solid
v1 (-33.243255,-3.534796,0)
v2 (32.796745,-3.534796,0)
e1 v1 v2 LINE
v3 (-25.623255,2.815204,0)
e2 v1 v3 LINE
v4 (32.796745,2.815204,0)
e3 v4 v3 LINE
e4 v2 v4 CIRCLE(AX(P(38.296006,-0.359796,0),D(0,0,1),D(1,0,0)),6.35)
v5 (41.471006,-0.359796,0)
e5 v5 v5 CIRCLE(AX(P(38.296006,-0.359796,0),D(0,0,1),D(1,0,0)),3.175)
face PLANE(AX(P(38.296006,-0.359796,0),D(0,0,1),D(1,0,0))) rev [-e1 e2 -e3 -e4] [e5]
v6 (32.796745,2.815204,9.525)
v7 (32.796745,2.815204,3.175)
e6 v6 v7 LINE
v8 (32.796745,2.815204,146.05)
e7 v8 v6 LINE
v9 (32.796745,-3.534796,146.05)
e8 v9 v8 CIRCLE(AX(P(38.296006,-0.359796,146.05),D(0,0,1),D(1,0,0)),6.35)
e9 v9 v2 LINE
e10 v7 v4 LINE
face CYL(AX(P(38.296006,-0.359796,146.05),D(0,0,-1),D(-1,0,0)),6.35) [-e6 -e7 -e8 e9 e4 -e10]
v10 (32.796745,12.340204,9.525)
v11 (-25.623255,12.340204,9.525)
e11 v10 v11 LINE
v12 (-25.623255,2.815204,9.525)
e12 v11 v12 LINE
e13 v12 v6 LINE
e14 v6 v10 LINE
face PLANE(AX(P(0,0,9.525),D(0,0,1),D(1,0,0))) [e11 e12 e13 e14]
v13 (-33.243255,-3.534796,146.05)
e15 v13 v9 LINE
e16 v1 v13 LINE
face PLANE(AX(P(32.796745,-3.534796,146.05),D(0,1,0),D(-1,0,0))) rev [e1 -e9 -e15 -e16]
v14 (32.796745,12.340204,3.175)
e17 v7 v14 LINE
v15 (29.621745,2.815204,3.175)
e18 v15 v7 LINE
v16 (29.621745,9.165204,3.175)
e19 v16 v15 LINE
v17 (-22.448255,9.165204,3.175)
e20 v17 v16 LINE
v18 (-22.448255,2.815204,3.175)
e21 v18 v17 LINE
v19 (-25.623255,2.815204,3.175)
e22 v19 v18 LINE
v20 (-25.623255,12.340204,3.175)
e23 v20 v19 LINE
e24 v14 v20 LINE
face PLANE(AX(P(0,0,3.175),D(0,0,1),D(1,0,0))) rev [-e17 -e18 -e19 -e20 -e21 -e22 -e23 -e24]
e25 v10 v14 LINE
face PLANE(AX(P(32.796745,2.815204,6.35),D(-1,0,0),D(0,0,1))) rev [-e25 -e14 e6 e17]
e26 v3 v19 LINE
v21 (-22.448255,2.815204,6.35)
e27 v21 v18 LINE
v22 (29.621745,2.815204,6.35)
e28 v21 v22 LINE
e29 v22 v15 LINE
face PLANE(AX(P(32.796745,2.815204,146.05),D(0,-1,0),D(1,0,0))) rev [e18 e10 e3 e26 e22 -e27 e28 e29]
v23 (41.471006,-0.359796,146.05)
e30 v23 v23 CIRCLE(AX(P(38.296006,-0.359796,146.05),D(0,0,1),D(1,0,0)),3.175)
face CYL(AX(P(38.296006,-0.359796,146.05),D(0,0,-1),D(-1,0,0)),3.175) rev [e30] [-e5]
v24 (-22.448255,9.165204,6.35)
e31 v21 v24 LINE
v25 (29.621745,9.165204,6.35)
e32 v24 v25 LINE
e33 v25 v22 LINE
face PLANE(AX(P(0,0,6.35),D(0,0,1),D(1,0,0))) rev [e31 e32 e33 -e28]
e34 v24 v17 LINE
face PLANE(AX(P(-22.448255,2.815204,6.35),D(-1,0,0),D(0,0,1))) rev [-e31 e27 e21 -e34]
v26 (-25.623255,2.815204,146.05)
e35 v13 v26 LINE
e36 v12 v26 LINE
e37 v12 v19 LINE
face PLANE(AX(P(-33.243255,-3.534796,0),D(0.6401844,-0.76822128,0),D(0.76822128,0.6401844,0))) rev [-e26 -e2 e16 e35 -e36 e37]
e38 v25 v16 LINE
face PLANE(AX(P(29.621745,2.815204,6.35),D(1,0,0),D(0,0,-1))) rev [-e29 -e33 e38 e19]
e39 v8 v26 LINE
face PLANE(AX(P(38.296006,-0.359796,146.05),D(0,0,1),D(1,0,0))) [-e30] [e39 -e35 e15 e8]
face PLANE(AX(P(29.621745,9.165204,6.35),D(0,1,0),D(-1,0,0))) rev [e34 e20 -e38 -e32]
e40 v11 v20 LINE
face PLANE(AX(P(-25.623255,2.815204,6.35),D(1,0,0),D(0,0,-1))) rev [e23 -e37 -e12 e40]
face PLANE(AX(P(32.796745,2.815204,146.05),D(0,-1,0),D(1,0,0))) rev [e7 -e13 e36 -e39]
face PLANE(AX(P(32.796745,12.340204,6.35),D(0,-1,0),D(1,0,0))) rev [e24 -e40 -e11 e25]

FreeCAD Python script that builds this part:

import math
import FreeCAD as App
import Part
import Sketcher
Q = App.Units.Quantity


def add_polygon(sketch, points):
    """Adds a closed chain of lines whose ends are joined by coincident constraints."""
    first, n = sketch.GeometryCount, len(points)
    for a, b in zip(points, points[1:] + points[:1]):
        sketch.addGeometry(Part.LineSegment(App.Vector(*a, 0), App.Vector(*b, 0)), False)
    for i in range(n):
        sketch.addConstraint(Sketcher.Constraint("Coincident", first + i, 2, first + (i + 1) % n, 1))

doc = App.newDocument("Part")
body = doc.addObject("PartDesign::Body", "Body")

# Sketch on XY plane
sketch1 = body.newObject("Sketcher::SketchObject", "Sketch")
sketch1.AttachmentSupport = (doc.getObject("XY_Plane"), [""])
sketch1.MapMode = "FlatFace"
sketch1.addGeometry([
    Part.LineSegment(App.Vector(-33.2, 2.8, 0), App.Vector(-25.6, -3.5, 0)),  # 0
    Part.LineSegment(App.Vector(-25.6, -3.5, 0), App.Vector(32.8, -3.5, 0)),  # 1
    Part.ArcOfCircle(Part.Circle(App.Vector(38.3, -0.4, 0), App.Vector(0, 0, 1), 6.3), math.radians(-150), math.radians(150)),  # 2
    Part.LineSegment(App.Vector(32.8, 2.8, 0), App.Vector(-33.2, 2.8, 0)),  # 3
    Part.Circle(App.Vector(38.3, -0.4, 0), App.Vector(0, 0, 1), 3.2),  # 4
], False)
sketch1.addConstraint([
    Sketcher.Constraint("Coincident", 0, 2, 1, 1),
    Sketcher.Constraint("Coincident", 1, 2, 2, 1),
    Sketcher.Constraint("Coincident", 2, 2, 3, 1),
    Sketcher.Constraint("Coincident", 3, 2, 0, 1),
    Sketcher.Constraint("Horizontal", 1),
    Sketcher.Constraint("Horizontal", 3),
    Sketcher.Constraint("Coincident", 4, 3, 2, 3),
    Sketcher.Constraint("Vertical", 1, 2, 2, 2),
    Sketcher.Constraint("Diameter", 4, Q("0.25 in")),
    Sketcher.Constraint("Radius", 2, Q("0.25 in")),
    Sketcher.Constraint("DistanceX", 1, 1, 1, 2, Q("2.3 in")),
    Sketcher.Constraint("DistanceX", 3, 2, 3, 1, Q("2.6 in")),
    Sketcher.Constraint("DistanceY", 1, 2, 2, 2, Q("0.25 in")),
    Sketcher.Constraint("DistanceX", -1, 1, 2, 3, 38.296006),
    Sketcher.Constraint("DistanceY", 2, 3, -1, 1, 0.359796),
])
pad1 = body.newObject("PartDesign::Pad", "Pad")
pad1.Profile = sketch1
pad1.Length = Q("5.75 in")

# Sketch on XY plane
sketch2 = body.newObject("Sketcher::SketchObject", "Sketch001")
sketch2.AttachmentSupport = (doc.getObject("XY_Plane"), [""])
sketch2.MapMode = "FlatFace"
sketch2.AttachmentOffset = App.Placement(App.Vector(0, 0, 0.125 * 25.4), App.Rotation())
add_polygon(sketch2, [(-25.6, 2.8), (-22.4, 2.8), (-22.4, 9.2), (29.6, 9.2), (29.6, 2.8), (32.8, 2.8), (32.8, 12.3), (-25.6, 12.3)])  # lines 0-7
sketch2.addConstraint([
    Sketcher.Constraint("Horizontal", 0),
    Sketcher.Constraint("Vertical", 1),
    Sketcher.Constraint("Horizontal", 2),
    Sketcher.Constraint("Vertical", 3),
    Sketcher.Constraint("Horizontal", 4),
    Sketcher.Constraint("Vertical", 5),
    Sketcher.Constraint("Horizontal", 6),
    Sketcher.Constraint("Vertical", 7),
    Sketcher.Constraint("Horizontal", 0, 2, 3, 2),
    Sketcher.Constraint("Equal", 0, 4),
    Sketcher.Constraint("DistanceX", 6, 2, 6, 1, Q("2.3 in")),
    Sketcher.Constraint("DistanceX", 2, 1, 2, 2, Q("2.05 in")),
    Sketcher.Constraint("DistanceY", 1, 1, 1, 2, Q("0.25 in")),
    Sketcher.Constraint("DistanceY", 5, 1, 5, 2, Q("0.375 in")),
    Sketcher.Constraint("DistanceX", 0, 2, -1, 1, 22.448255),
    Sketcher.Constraint("DistanceY", -1, 1, 0, 2, 2.815204),
])
pad2 = body.newObject("PartDesign::Pad", "Pad001")
pad2.Profile = sketch2
pad2.Length = Q("0.125 in")

# Sketch on XY plane
sketch3 = body.newObject("Sketcher::SketchObject", "Sketch002")
sketch3.AttachmentSupport = (doc.getObject("XY_Plane"), [""])
sketch3.MapMode = "FlatFace"
sketch3.AttachmentOffset = App.Placement(App.Vector(0, 0, 0.25 * 25.4), App.Rotation())
add_polygon(sketch3, [(-26, 12), (-26, 3), (33, 3), (33, 12)])  # lines 0-3
sketch3.addConstraint([
    Sketcher.Constraint("Vertical", 0),
    Sketcher.Constraint("Horizontal", 1),
    Sketcher.Constraint("Vertical", 2),
    Sketcher.Constraint("Horizontal", 3),
    Sketcher.Constraint("DistanceX", 1, 1, 1, 2, Q("2.3 in")),
    Sketcher.Constraint("DistanceY", 0, 2, 0, 1, Q("0.375 in")),
    Sketcher.Constraint("DistanceX", 0, 2, -1, 1, 25.623255),
    Sketcher.Constraint("DistanceY", -1, 1, 0, 2, 2.815204),
])
pad3 = body.newObject("PartDesign::Pad", "Pad002")
pad3.Profile = sketch3
pad3.Length = Q("0.125 in")

# Sketch on XY plane
sketch4 = body.newObject("Sketcher::SketchObject", "Sketch003")
sketch4.AttachmentSupport = (doc.getObject("XY_Plane"), [""])
sketch4.MapMode = "FlatFace"
sketch4.AttachmentOffset = App.Placement(App.Vector(0, 0, 5.75 * 25.4), App.Rotation())
add_polygon(sketch4, [(-33, 3), (-33, -4), (-26, -4)])  # lines 0-2
sketch4.addConstraint([
    Sketcher.Constraint("Vertical", 0),
    Sketcher.Constraint("Horizontal", 1),
    Sketcher.Constraint("DistanceX", 1, 1, 1, 2, Q("0.3 in")),
    Sketcher.Constraint("DistanceY", 0, 2, 0, 1, Q("0.25 in")),
    Sketcher.Constraint("DistanceX", 0, 2, -1, 1, 33.243255),
    Sketcher.Constraint("DistanceY", 0, 2, -1, 1, 3.534796),
])
pad4 = body.newObject("PartDesign::Pad", "Pad003")
pad4.Profile = sketch4
pad4.Length = Q("5.75 in")
pad4.Reversed = True

# Sketch on XY plane
sketch5 = body.newObject("Sketcher::SketchObject", "Sketch004")
sketch5.AttachmentSupport = (doc.getObject("XY_Plane"), [""])
sketch5.MapMode = "FlatFace"
sketch5.AttachmentOffset = App.Placement(App.Vector(0, 0, 5.75 * 25.4), App.Rotation())
add_polygon(sketch5, [(-33, -4), (-26, 3), (-33, 3)])  # lines 0-2
sketch5.addConstraint([
    Sketcher.Constraint("Horizontal", 1),
    Sketcher.Constraint("Vertical", 2),
    Sketcher.Constraint("DistanceX", 1, 2, 1, 1, Q("0.3 in")),
    Sketcher.Constraint("DistanceY", 2, 2, 2, 1, Q("0.25 in")),
    Sketcher.Constraint("DistanceX", 0, 2, -1, 1, 25.623255),
    Sketcher.Constraint("DistanceY", -1, 1, 0, 2, 2.815204),
])
pocket1 = body.newObject("PartDesign::Pocket", "Pocket")
pocket1.Profile = sketch5
pocket1.Length = Q("5.75 in")

doc.recompute()
